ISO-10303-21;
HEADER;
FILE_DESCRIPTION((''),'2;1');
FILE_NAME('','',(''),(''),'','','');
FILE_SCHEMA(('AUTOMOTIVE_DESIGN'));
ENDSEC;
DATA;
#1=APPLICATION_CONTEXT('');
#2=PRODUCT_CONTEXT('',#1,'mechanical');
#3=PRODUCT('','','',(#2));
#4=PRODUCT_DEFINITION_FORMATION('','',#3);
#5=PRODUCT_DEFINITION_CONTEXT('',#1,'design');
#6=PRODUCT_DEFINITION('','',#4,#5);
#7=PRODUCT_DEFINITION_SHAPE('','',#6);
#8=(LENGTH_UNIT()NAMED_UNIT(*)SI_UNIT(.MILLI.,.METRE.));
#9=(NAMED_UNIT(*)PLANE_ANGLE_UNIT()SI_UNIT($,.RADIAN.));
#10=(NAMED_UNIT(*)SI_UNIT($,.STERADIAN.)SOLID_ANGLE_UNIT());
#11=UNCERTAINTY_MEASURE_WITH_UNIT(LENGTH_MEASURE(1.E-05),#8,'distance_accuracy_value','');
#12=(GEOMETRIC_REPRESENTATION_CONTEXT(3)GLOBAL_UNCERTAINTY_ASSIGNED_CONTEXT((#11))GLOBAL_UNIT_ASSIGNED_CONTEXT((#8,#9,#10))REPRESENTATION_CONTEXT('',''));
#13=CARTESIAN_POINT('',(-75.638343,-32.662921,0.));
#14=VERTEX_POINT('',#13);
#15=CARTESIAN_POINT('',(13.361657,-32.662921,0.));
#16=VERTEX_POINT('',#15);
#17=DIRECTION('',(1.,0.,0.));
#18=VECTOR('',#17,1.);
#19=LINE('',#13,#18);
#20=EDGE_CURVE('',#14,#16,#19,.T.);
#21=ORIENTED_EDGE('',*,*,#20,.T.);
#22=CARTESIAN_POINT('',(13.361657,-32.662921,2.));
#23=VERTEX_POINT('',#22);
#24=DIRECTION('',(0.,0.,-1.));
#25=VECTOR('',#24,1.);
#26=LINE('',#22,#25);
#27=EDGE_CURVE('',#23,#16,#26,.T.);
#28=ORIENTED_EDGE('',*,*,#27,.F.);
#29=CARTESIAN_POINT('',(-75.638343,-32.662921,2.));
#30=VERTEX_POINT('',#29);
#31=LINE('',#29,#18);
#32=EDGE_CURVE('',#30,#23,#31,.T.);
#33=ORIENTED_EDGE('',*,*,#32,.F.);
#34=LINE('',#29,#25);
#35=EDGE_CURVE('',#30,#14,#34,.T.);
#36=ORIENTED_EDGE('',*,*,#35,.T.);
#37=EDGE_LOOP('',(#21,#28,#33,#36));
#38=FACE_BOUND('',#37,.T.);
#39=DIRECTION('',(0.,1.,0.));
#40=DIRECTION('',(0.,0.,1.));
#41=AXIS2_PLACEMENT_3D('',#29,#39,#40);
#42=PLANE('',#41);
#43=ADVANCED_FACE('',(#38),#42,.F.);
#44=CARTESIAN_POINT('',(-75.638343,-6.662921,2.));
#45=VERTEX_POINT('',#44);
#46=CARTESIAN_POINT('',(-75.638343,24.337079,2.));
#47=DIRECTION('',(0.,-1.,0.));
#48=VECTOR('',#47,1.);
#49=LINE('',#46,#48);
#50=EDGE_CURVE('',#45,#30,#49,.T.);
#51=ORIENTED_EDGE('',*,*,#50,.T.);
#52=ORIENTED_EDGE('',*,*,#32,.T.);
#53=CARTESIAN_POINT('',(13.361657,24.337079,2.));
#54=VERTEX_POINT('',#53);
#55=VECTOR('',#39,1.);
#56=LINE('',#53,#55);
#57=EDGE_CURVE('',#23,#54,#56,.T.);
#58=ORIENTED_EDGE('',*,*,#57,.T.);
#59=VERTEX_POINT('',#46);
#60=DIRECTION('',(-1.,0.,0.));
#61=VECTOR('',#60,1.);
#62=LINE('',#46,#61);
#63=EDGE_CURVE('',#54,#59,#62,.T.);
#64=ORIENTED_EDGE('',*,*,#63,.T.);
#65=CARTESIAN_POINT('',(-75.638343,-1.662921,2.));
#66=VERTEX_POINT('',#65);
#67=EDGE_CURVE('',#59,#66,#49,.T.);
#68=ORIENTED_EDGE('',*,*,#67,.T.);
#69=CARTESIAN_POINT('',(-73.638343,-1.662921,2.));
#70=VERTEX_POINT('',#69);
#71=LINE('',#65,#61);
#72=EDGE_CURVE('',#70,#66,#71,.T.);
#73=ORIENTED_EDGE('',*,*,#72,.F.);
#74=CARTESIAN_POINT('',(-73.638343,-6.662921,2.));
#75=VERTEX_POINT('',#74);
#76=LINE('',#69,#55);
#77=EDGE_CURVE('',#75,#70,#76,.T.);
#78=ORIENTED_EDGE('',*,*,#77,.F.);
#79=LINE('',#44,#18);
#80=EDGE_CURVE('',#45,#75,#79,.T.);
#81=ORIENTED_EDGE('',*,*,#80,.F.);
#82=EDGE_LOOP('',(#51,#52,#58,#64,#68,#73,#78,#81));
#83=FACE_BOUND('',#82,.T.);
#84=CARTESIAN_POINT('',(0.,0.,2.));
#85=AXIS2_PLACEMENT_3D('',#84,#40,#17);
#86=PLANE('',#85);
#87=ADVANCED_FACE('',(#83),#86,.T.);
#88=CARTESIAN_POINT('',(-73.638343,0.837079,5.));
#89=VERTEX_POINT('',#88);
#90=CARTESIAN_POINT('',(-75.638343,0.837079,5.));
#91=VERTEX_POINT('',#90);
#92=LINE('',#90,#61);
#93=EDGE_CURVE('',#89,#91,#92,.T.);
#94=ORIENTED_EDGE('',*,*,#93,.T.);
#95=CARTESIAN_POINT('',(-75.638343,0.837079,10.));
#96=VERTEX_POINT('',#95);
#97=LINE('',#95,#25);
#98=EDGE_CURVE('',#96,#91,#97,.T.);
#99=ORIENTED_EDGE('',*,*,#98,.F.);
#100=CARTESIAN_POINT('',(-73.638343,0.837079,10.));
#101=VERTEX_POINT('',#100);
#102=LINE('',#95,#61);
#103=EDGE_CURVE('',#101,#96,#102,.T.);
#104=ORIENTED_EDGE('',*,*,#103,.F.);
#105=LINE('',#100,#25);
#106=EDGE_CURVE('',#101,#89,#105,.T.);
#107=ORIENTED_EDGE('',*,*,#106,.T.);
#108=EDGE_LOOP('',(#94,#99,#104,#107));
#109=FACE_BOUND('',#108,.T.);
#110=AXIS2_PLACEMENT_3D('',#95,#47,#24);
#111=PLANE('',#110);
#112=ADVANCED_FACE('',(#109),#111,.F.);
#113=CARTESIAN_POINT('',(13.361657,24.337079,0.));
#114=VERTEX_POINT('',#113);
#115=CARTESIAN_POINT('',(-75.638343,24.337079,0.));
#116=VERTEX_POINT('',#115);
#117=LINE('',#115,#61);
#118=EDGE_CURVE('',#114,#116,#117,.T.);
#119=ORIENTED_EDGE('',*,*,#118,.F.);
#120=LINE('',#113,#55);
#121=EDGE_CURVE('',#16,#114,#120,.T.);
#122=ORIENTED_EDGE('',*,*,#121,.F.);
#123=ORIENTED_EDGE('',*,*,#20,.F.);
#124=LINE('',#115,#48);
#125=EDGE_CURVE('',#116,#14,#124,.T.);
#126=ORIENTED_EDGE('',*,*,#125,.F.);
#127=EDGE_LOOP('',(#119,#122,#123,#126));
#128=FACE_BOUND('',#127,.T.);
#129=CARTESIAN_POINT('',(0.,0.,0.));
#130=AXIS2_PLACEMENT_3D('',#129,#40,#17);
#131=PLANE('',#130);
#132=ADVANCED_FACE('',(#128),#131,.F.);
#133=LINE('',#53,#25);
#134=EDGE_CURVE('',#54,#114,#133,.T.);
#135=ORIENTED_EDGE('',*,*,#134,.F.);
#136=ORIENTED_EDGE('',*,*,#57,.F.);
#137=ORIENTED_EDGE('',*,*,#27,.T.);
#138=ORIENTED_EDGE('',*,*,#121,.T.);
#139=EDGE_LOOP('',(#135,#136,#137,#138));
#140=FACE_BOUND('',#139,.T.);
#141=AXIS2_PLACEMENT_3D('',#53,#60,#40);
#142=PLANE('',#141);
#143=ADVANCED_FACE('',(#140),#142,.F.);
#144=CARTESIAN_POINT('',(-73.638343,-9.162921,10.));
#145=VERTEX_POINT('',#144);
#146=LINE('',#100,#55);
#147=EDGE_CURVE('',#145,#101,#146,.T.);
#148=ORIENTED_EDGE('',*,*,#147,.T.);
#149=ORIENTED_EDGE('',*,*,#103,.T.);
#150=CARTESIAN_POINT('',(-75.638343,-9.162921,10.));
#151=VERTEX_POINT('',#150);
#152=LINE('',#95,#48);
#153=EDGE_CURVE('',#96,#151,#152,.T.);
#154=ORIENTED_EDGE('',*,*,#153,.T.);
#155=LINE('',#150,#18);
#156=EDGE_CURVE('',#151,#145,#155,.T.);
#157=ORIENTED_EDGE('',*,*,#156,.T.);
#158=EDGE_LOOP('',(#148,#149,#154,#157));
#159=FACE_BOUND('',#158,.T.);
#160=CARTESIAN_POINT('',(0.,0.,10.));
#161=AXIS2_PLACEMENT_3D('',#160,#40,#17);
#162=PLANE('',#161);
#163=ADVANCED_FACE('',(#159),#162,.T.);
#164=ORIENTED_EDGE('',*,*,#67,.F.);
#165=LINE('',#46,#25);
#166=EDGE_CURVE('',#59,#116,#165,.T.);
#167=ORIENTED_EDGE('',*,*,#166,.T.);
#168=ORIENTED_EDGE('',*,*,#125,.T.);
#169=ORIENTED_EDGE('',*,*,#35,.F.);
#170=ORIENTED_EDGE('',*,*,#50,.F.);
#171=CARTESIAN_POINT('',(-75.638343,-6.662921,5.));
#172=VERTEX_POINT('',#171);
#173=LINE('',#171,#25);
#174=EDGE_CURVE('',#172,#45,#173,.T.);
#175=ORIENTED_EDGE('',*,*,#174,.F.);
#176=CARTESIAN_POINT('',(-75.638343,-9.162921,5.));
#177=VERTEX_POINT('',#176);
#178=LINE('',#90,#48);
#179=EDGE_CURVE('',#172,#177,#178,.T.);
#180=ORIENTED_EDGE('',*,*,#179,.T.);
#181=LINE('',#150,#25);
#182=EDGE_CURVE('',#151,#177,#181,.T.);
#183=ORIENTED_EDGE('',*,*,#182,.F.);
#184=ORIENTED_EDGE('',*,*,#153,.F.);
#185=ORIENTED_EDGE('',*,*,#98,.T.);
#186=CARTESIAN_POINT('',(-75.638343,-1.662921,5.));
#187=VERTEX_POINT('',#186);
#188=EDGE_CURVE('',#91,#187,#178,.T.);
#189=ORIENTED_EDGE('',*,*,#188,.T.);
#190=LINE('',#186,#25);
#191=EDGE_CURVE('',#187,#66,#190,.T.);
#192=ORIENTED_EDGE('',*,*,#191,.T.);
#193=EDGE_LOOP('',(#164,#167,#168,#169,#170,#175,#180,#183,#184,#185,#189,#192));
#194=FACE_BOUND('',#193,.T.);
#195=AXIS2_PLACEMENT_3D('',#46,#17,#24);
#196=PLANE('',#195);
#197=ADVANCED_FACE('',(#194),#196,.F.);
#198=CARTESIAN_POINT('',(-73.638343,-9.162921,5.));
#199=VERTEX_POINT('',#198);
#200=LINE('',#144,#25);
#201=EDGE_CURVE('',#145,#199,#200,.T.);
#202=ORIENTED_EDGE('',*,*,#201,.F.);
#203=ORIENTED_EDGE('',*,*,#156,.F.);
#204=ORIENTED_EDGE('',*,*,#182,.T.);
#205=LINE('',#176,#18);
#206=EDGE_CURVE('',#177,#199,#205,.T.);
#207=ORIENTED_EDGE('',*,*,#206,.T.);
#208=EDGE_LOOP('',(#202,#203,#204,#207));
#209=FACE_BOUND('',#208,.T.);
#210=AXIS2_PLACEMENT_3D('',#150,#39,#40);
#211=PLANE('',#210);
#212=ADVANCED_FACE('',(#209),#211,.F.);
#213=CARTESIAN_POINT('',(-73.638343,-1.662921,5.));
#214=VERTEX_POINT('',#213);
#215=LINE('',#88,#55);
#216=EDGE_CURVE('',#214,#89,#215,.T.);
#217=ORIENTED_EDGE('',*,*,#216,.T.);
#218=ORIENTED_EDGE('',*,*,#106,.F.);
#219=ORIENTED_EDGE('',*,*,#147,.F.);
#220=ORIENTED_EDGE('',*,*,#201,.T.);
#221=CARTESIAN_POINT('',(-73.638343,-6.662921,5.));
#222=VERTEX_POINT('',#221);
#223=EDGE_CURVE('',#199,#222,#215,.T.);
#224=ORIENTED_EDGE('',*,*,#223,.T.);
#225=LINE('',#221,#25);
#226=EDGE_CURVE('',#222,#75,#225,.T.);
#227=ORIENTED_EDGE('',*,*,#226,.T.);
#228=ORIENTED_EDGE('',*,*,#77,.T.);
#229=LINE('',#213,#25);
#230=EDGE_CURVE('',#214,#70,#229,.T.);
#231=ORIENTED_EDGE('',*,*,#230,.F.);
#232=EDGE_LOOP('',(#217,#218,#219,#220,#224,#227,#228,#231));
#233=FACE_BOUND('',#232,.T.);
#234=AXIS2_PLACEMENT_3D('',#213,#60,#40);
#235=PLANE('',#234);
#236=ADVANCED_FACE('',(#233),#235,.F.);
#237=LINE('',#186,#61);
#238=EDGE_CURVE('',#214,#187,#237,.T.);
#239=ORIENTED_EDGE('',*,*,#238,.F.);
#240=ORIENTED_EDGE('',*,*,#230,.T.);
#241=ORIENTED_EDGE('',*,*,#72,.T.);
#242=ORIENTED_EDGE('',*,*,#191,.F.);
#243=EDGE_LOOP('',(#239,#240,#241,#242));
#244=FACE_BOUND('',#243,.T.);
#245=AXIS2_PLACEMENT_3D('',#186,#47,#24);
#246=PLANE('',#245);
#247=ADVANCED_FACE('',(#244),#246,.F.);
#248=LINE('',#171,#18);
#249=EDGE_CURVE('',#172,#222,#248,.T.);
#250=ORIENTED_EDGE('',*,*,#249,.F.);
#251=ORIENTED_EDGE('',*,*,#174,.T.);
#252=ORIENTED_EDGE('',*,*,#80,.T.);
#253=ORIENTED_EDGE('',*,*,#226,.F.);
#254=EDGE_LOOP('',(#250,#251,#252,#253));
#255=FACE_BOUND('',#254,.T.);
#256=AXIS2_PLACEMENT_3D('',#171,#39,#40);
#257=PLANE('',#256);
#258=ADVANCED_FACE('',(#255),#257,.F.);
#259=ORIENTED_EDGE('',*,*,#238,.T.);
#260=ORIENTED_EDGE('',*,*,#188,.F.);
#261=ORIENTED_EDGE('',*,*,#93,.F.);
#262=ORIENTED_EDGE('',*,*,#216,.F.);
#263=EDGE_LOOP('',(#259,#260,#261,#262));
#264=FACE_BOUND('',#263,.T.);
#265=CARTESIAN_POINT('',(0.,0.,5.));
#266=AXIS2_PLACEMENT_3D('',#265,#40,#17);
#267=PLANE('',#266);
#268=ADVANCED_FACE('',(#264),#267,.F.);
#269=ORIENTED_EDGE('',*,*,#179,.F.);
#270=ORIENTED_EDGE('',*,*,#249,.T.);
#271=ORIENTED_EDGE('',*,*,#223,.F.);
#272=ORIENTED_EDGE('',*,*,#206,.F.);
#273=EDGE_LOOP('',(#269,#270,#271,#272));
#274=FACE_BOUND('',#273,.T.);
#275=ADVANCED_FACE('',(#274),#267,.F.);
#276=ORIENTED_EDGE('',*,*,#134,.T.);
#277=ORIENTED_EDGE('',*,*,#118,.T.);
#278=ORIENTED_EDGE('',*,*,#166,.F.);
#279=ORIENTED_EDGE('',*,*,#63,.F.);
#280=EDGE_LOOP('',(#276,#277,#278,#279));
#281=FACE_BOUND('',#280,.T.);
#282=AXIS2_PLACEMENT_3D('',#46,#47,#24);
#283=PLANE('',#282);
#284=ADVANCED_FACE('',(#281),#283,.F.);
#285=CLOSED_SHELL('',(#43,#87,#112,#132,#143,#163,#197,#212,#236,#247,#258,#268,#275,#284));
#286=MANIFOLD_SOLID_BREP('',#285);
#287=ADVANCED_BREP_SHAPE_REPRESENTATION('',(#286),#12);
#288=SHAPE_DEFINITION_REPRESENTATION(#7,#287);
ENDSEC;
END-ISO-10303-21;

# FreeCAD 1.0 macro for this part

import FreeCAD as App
import Part
import Sketcher

V = App.Vector
Q = App.Units.Quantity

doc = App.newDocument("Part")
params = doc.addObject("Spreadsheet::Sheet", "Params")
for row, (alias, value) in enumerate([
    ("sketch1_width", "89 mm"),
    ("sketch1_height", "57 mm"),
    ("pad1_length", "2 mm"),
    ("sketch2_width", "2 mm"),
    ("sketch2_height", "5 mm"),
    ("pad2_length", "3 mm"),
    ("sketch3_width", "2 mm"),
    ("sketch3_height", "10 mm"),
    ("pad3_length", "5 mm"),
], start=1):
    params.set(f"A{row}", alias)
    params.set(f"B{row}", "=" + value)
    params.setAlias(f"B{row}", alias)

body = doc.addObject("PartDesign::Body", "Body")

# Sketch on XY plane
sketch1 = body.newObject("Sketcher::SketchObject", "Sketch")
sketch1.AttachmentSupport = (doc.getObject("XY_Plane"), [""])
sketch1.MapMode = "FlatFace"
sketch1.addGeometry([
    Part.LineSegment(V(-76, 24, 0), V(-76, -33, 0)),
    Part.LineSegment(V(-76, -33, 0), V(13, -33, 0)),
    Part.LineSegment(V(13, -33, 0), V(13, 24, 0)),
    Part.LineSegment(V(13, 24, 0), V(-76, 24, 0)),
], False)
sketch1.addConstraint([
    Sketcher.Constraint("Coincident", 0, 2, 1, 1),
    Sketcher.Constraint("Coincident", 1, 2, 2, 1),
    Sketcher.Constraint("Coincident", 2, 2, 3, 1),
    Sketcher.Constraint("Coincident", 3, 2, 0, 1),
    Sketcher.Constraint("Vertical", 0),
    Sketcher.Constraint("Horizontal", 1),
    Sketcher.Constraint("Vertical", 2),
    Sketcher.Constraint("Horizontal", 3),
    Sketcher.Constraint("DistanceX", 1, 1, 1, 2, Q("89 mm")),
    Sketcher.Constraint("DistanceY", 0, 2, 0, 1, Q("57 mm")),
    Sketcher.Constraint("DistanceY", 0, 2, -1, 1, Q("32.662921 mm")),
    Sketcher.Constraint("DistanceX", 0, 2, -1, 1, Q("75.638343 mm")),
])
sketch1.setExpression("Constraints[8]", "Params.sketch1_width")
sketch1.setExpression("Constraints[9]", "Params.sketch1_height")
pad1 = body.newObject("PartDesign::Pad", "Pad")
pad1.Profile = sketch1
pad1.setExpression("Length", "Params.pad1_length")

# Sketch on XY plane
sketch2 = body.newObject("Sketcher::SketchObject", "Sketch001")
sketch2.AttachmentSupport = (doc.getObject("XY_Plane"), [""])
sketch2.MapMode = "FlatFace"
sketch2.AttachmentOffset = App.Placement(V(0, 0, 2), App.Rotation())
sketch2.addGeometry([
    Part.LineSegment(V(-75.6, -1.7, 0), V(-75.6, -6.7, 0)),
    Part.LineSegment(V(-75.6, -6.7, 0), V(-73.6, -6.7, 0)),
    Part.LineSegment(V(-73.6, -6.7, 0), V(-73.6, -1.7, 0)),
    Part.LineSegment(V(-73.6, -1.7, 0), V(-75.6, -1.7, 0)),
], False)
sketch2.addConstraint([
    Sketcher.Constraint("Coincident", 0, 2, 1, 1),
    Sketcher.Constraint("Coincident", 1, 2, 2, 1),
    Sketcher.Constraint("Coincident", 2, 2, 3, 1),
    Sketcher.Constraint("Coincident", 3, 2, 0, 1),
    Sketcher.Constraint("Vertical", 0),
    Sketcher.Constraint("Horizontal", 1),
    Sketcher.Constraint("Vertical", 2),
    Sketcher.Constraint("Horizontal", 3),
    Sketcher.Constraint("DistanceX", 1, 1, 1, 2, Q("2 mm")),
    Sketcher.Constraint("DistanceY", 0, 2, 0, 1, Q("5 mm")),
    Sketcher.Constraint("DistanceY", 0, 2, -1, 1, Q("6.662921 mm")),
    Sketcher.Constraint("DistanceX", 0, 2, -1, 1, Q("75.638343 mm")),
])
sketch2.setExpression("Constraints[8]", "Params.sketch2_width")
sketch2.setExpression("Constraints[9]", "Params.sketch2_height")
pad2 = body.newObject("PartDesign::Pad", "Pad001")
pad2.Profile = sketch2
pad2.setExpression("Length", "Params.pad2_length")

# Sketch on XY plane
sketch3 = body.newObject("Sketcher::SketchObject", "Sketch002")
sketch3.AttachmentSupport = (doc.getObject("XY_Plane"), [""])
sketch3.MapMode = "FlatFace"
sketch3.AttachmentOffset = App.Placement(V(0, 0, 5), App.Rotation())
sketch3.addGeometry([
    Part.LineSegment(V(-75.6, 0.8, 0), V(-75.6, -9.2, 0)),
    Part.LineSegment(V(-75.6, -9.2, 0), V(-73.6, -9.2, 0)),
    Part.LineSegment(V(-73.6, -9.2, 0), V(-73.6, 0.8, 0)),
    Part.LineSegment(V(-73.6, 0.8, 0), V(-75.6, 0.8, 0)),
], False)
sketch3.addConstraint([
    Sketcher.Constraint("Coincident", 0, 2, 1, 1),
    Sketcher.Constraint("Coincident", 1, 2, 2, 1),
    Sketcher.Constraint("Coincident", 2, 2, 3, 1),
    Sketcher.Constraint("Coincident", 3, 2, 0, 1),
    Sketcher.Constraint("Vertical", 0),
    Sketcher.Constraint("Horizontal", 1),
    Sketcher.Constraint("Vertical", 2),
    Sketcher.Constraint("Horizontal", 3),
    Sketcher.Constraint("DistanceX", 1, 1, 1, 2, Q("2 mm")),
    Sketcher.Constraint("DistanceY", 0, 2, 0, 1, Q("10 mm")),
    Sketcher.Constraint("DistanceY", 0, 2, -1, 1, Q("9.162921 mm")),
    Sketcher.Constraint("DistanceX", 0, 2, -1, 1, Q("75.638343 mm")),
])
sketch3.setExpression("Constraints[8]", "Params.sketch3_width")
sketch3.setExpression("Constraints[9]", "Params.sketch3_height")
pad3 = body.newObject("PartDesign::Pad", "Pad002")
pad3.Profile = sketch3
pad3.setExpression("Length", "Params.pad3_length")

doc.recompute()
